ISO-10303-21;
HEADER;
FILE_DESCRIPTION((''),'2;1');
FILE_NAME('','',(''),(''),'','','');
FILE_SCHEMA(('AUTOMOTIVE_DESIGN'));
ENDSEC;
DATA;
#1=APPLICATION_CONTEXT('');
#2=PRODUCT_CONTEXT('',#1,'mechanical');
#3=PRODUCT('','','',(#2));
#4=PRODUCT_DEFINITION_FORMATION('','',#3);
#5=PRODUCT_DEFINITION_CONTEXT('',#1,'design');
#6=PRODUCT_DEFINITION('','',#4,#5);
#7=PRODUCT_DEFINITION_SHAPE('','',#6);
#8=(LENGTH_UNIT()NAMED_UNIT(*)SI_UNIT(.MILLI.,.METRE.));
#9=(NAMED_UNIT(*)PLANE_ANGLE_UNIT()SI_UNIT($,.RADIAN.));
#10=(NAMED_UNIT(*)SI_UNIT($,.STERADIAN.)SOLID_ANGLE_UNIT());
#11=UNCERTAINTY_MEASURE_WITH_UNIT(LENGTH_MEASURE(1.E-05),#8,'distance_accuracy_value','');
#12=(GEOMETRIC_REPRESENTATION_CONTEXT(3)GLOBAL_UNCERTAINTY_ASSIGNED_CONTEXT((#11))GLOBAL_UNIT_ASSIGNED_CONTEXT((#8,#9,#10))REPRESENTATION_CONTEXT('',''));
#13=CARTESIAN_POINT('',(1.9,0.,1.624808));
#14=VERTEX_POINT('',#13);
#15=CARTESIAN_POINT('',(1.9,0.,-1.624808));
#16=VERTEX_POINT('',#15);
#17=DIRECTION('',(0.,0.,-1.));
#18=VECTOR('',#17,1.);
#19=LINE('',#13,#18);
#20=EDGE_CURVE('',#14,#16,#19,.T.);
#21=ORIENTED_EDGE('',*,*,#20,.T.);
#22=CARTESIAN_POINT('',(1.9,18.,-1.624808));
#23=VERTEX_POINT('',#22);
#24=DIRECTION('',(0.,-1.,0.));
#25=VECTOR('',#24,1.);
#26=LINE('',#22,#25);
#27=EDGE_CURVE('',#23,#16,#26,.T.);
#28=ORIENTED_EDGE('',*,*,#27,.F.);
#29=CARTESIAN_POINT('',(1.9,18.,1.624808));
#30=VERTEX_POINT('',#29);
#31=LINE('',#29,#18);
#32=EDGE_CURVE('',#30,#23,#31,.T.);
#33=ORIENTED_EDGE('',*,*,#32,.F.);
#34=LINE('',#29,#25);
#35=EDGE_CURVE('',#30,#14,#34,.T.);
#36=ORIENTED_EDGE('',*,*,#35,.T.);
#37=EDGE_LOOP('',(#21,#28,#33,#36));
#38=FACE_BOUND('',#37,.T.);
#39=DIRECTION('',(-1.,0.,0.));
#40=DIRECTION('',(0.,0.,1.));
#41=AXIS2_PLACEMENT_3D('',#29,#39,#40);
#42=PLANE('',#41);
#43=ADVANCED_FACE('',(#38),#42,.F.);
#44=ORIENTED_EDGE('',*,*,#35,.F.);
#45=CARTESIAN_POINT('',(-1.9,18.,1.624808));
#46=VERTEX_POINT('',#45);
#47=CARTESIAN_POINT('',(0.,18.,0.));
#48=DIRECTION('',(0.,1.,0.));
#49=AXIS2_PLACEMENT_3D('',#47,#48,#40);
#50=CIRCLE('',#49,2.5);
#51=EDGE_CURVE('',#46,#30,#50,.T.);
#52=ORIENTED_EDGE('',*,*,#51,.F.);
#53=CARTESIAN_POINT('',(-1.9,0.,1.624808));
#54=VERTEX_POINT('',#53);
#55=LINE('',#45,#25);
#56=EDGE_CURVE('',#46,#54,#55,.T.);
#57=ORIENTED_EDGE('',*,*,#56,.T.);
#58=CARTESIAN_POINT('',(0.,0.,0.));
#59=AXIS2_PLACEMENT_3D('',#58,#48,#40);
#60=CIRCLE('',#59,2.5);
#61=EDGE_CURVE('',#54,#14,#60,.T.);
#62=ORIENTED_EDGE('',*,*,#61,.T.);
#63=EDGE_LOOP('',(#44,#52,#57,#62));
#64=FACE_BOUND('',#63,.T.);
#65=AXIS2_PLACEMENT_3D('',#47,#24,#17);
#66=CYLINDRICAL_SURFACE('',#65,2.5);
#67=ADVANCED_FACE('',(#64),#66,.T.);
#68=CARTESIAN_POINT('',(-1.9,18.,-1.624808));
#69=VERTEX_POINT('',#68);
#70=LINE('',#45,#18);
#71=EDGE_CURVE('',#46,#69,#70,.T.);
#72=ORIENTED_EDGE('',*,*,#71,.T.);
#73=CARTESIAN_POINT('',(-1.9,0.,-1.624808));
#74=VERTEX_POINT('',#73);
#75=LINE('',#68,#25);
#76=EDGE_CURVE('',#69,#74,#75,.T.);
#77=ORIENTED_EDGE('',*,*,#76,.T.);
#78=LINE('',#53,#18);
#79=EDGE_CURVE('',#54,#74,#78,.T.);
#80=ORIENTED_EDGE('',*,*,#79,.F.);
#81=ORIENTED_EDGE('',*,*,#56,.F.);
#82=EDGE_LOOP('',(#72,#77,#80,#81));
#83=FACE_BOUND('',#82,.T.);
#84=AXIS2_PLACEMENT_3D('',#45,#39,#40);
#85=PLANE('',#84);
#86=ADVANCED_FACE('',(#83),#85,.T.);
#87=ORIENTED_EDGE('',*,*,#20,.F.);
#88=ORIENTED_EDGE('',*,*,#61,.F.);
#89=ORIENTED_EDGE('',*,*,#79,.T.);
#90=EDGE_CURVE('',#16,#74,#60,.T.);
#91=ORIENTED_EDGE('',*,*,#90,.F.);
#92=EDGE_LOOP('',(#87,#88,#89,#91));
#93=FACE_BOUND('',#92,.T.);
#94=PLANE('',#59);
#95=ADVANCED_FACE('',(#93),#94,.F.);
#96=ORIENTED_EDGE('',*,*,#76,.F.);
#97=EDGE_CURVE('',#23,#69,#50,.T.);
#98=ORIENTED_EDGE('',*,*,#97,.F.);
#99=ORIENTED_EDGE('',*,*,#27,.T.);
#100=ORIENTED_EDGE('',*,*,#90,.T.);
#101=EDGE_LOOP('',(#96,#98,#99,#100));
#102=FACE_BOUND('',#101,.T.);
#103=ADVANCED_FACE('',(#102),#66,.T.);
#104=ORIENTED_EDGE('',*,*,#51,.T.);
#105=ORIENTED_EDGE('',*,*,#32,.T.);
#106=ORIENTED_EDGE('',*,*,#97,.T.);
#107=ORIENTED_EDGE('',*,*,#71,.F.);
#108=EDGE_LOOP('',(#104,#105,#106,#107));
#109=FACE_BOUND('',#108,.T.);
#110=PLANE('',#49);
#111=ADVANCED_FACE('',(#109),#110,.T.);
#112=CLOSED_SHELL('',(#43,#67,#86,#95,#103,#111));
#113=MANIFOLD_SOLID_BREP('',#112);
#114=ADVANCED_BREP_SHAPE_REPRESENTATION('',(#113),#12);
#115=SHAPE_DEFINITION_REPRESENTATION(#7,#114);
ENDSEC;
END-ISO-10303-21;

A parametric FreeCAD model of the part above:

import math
import FreeCAD as App
import Part
import Sketcher
from FreeCAD import Vector
Q = App.Units.Quantity

doc = App.newDocument("Part")
body = doc.addObject("PartDesign::Body", "Body")

# Sketch on XZ plane
sketch1 = body.newObject("Sketcher::SketchObject", "Sketch")
sketch1.AttachmentSupport = (doc.getObject("XZ_Plane"), [""])
sketch1.MapMode = "FlatFace"
sketch1.addGeometry([
    Part.LineSegment(Vector(1.9, 1.624808, 0), Vector(1.9, -1.624808, 0)),
    Part.ArcOfCircle(Part.Circle(Vector(0, 0, 0), Vector(0, 0, 1), 2.5), math.radians(-139.464198), math.radians(-40.535802)),
    Part.LineSegment(Vector(-1.9, -1.624808, 0), Vector(-1.9, 1.624808, 0)),
    Part.ArcOfCircle(Part.Circle(Vector(0, 0, 0), Vector(0, 0, 1), 2.5), math.radians(40.535802), math.radians(139.464198)),
], False)
sketch1.addConstraint([
    Sketcher.Constraint("Coincident", 0, 2, 1, 2),
    Sketcher.Constraint("Coincident", 1, 1, 2, 1),
    Sketcher.Constraint("Coincident", 2, 2, 3, 2),
    Sketcher.Constraint("Coincident", 3, 1, 0, 1),
    Sketcher.Constraint("Vertical", 0),
    Sketcher.Constraint("Vertical", 2),
    Sketcher.Constraint("Coincident", 1, 3, -1, 1),
    Sketcher.Constraint("Coincident", 3, 3, -1, 1),
    Sketcher.Constraint("Equal", 1, 3),
    Sketcher.Constraint("Horizontal", 0, 2, 1, 1),
    Sketcher.Constraint("Radius", 1, Q("2.5 mm")),
    Sketcher.Constraint("DistanceX", -1, 1, 0, 2, Q("1.9 mm")),
])
pad1 = body.newObject("PartDesign::Pad", "Pad")
pad1.Profile = sketch1
pad1.Length = 18
pad1.Reversed = True

doc.recompute()
